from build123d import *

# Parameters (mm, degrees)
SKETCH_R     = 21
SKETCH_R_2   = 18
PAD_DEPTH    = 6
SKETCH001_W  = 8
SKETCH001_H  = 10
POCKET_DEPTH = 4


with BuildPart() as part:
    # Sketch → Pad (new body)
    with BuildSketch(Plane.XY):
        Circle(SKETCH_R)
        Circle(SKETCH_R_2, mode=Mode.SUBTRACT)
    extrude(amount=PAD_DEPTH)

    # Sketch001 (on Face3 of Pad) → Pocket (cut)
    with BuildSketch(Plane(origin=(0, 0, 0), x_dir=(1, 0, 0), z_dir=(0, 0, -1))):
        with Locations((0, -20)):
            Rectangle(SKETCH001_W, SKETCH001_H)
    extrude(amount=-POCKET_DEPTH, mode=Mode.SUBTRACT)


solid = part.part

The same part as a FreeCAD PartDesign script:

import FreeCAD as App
import Part
import Sketcher

V = App.Vector


def add_polygon(sketch, points):
    """Adds a closed chain of lines whose ends are joined by coincident constraints."""
    first, n = sketch.GeometryCount, len(points)
    for a, b in zip(points, points[1:] + points[:1]):
        sketch.addGeometry(Part.LineSegment(App.Vector(*a, 0), App.Vector(*b, 0)), False)
    for i in range(n):
        sketch.addConstraint(Sketcher.Constraint("Coincident", first + i, 2, first + (i + 1) % n, 1))

doc = App.newDocument("Part")
body = doc.addObject("PartDesign::Body", "Body")

sketch1 = doc.addObject("Sketcher::SketchObject", "Sketch")
body.addObject(sketch1)
sketch1.AttachmentSupport = (doc.XY_Plane, [""])
sketch1.MapMode = "FlatFace"
sketch1.addGeometry([
    Part.Circle(V(0, 0, 0), V(0, 0, 1), 21),
    Part.Circle(V(0, 0, 0), V(0, 0, 1), 18),
], False)
sketch1.addConstraint([
    Sketcher.Constraint("Coincident", 0, 3, -1, 1),
    Sketcher.Constraint("Coincident", 1, 3, -1, 1),
    Sketcher.Constraint("Diameter", 0, 42.0),
    Sketcher.Constraint("Diameter", 1, 36.0),
])
pad1 = doc.addObject("PartDesign::Pad", "Pad")
body.addObject(pad1)
pad1.Profile = sketch1
pad1.Length = 6

sketch2 = doc.addObject("Sketcher::SketchObject", "Sketch001")
body.addObject(sketch2)
sketch2.AttachmentSupport = (doc.XY_Plane, [""])
sketch2.MapMode = "FlatFace"
add_polygon(sketch2, [(-4, 15), (-4, 25), (4, 25), (4, 15)])
sketch2.addConstraint([
    Sketcher.Constraint("Vertical", 0),
    Sketcher.Constraint("Horizontal", 1),
    Sketcher.Constraint("Vertical", 2),
    Sketcher.Constraint("Horizontal", 3),
    Sketcher.Constraint("DistanceX", 1, 1, 1, 2, 8.0),
    Sketcher.Constraint("DistanceY", 0, 1, 0, 2, 10.0),
    Sketcher.Constraint("DistanceX", 0, 2, -1, 1, 4.0),
    Sketcher.Constraint("DistanceY", -1, 1, 0, 2, 25.0),
])
pocket1 = doc.addObject("PartDesign::Pocket", "Pocket")
body.addObject(pocket1)
pocket1.Profile = sketch2
pocket1.Length = 4
pocket1.Reversed = True

doc.recompute()
